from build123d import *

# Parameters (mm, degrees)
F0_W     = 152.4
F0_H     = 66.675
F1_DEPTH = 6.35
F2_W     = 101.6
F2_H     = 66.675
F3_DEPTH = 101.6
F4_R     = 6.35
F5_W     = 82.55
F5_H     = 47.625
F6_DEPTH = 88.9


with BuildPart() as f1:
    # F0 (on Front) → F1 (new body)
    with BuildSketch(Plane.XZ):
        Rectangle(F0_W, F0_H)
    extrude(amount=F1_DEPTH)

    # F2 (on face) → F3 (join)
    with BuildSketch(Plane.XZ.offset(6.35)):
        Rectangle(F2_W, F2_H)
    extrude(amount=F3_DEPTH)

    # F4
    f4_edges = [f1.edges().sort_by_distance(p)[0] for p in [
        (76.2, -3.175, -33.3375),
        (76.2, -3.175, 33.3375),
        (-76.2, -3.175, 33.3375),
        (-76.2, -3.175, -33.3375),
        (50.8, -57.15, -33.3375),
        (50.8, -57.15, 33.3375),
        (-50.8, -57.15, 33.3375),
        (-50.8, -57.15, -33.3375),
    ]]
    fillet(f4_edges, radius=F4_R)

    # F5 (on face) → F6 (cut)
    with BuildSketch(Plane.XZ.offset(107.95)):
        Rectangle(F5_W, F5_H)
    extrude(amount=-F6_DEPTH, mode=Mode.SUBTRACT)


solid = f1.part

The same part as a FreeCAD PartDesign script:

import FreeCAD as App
import Part
import Sketcher

V = App.Vector
Q = App.Units.Quantity


def edges_at(feature, points):
    """Names of the edges that pass closest to the given points."""
    edges = feature.Shape.Edges
    near = lambda p: min(range(len(edges)), key=lambda i: edges[i].distToShape(Part.Vertex(*p))[0])
    return sorted({f"Edge{near(p) + 1}" for p in points})

doc = App.newDocument("Part")
body = doc.addObject("PartDesign::Body", "Body")

# Sketch on XZ plane
sketch1 = body.newObject("Sketcher::SketchObject", "Sketch")
sketch1.AttachmentSupport = (doc.getObject("XZ_Plane"), [""])
sketch1.MapMode = "FlatFace"
sketch1.addGeometry([
    Part.LineSegment(V(-76, 33, 0), V(-76, -33, 0)),
    Part.LineSegment(V(-76, -33, 0), V(76, -33, 0)),
    Part.LineSegment(V(76, -33, 0), V(76, 33, 0)),
    Part.LineSegment(V(76, 33, 0), V(-76, 33, 0)),
], False)
sketch1.addConstraint([
    Sketcher.Constraint("Coincident", 0, 2, 1, 1),
    Sketcher.Constraint("Coincident", 1, 2, 2, 1),
    Sketcher.Constraint("Coincident", 2, 2, 3, 1),
    Sketcher.Constraint("Coincident", 3, 2, 0, 1),
    Sketcher.Constraint("Vertical", 0),
    Sketcher.Constraint("Horizontal", 1),
    Sketcher.Constraint("Vertical", 2),
    Sketcher.Constraint("Horizontal", 3),
    Sketcher.Constraint("Symmetric", 0, 2, 2, 2, -1, 1),
    Sketcher.Constraint("DistanceX", 1, 1, 1, 2, Q("6 in")),
    Sketcher.Constraint("DistanceY", 0, 2, 0, 1, Q("2.625 in")),
])
pad1 = body.newObject("PartDesign::Pad", "Pad")
pad1.Profile = sketch1
pad1.Length = Q("0.25 in")

# Sketch on XZ plane
sketch2 = body.newObject("Sketcher::SketchObject", "Sketch001")
sketch2.AttachmentSupport = (doc.getObject("XZ_Plane"), [""])
sketch2.MapMode = "FlatFace"
sketch2.AttachmentOffset = App.Placement(V(0, 0, 0.25 * 25.4), App.Rotation())
sketch2.addGeometry([
    Part.LineSegment(V(-51, 33, 0), V(-51, -33, 0)),
    Part.LineSegment(V(-51, -33, 0), V(51, -33, 0)),
    Part.LineSegment(V(51, -33, 0), V(51, 33, 0)),
    Part.LineSegment(V(51, 33, 0), V(-51, 33, 0)),
], False)
sketch2.addConstraint([
    Sketcher.Constraint("Coincident", 0, 2, 1, 1),
    Sketcher.Constraint("Coincident", 1, 2, 2, 1),
    Sketcher.Constraint("Coincident", 2, 2, 3, 1),
    Sketcher.Constraint("Coincident", 3, 2, 0, 1),
    Sketcher.Constraint("Vertical", 0),
    Sketcher.Constraint("Horizontal", 1),
    Sketcher.Constraint("Vertical", 2),
    Sketcher.Constraint("Horizontal", 3),
    Sketcher.Constraint("Symmetric", 0, 2, 2, 2, -1, 1),
    Sketcher.Constraint("DistanceX", 1, 1, 1, 2, Q("4 in")),
    Sketcher.Constraint("DistanceY", 0, 2, 0, 1, Q("2.625 in")),
])
pad2 = body.newObject("PartDesign::Pad", "Pad001")
pad2.Profile = sketch2
pad2.Length = Q("4 in")
doc.recompute()

fillet = body.newObject("PartDesign::Fillet", "Fillet")
fillet.Base = (pad2, edges_at(pad2, [
    (76.2, -3.175, -33.337),
    (76.2, -3.175, 33.337),
    (-76.2, -3.175, 33.337),
    (-76.2, -3.175, -33.337),
    (50.8, -57.15, -33.337),
    (50.8, -57.15, 33.337),
    (-50.8, -57.15, 33.337),
    (-50.8, -57.15, -33.337),
]))
fillet.Radius = Q("0.25 in")

# Sketch on XZ plane
sketch3 = body.newObject("Sketcher::SketchObject", "Sketch002")
sketch3.AttachmentSupport = (doc.getObject("XZ_Plane"), [""])
sketch3.MapMode = "FlatFace"
sketch3.AttachmentOffset = App.Placement(V(0, 0, 4.25 * 25.4), App.Rotation())
sketch3.addGeometry([
    Part.LineSegment(V(-41, 24, 0), V(-41, -24, 0)),
    Part.LineSegment(V(-41, -24, 0), V(41, -24, 0)),
    Part.LineSegment(V(41, -24, 0), V(41, 24, 0)),
    Part.LineSegment(V(41, 24, 0), V(-41, 24, 0)),
], False)
sketch3.addConstraint([
    Sketcher.Constraint("Coincident", 0, 2, 1, 1),
    Sketcher.Constraint("Coincident", 1, 2, 2, 1),
    Sketcher.Constraint("Coincident", 2, 2, 3, 1),
    Sketcher.Constraint("Coincident", 3, 2, 0, 1),
    Sketcher.Constraint("Vertical", 0),
    Sketcher.Constraint("Horizontal", 1),
    Sketcher.Constraint("Vertical", 2),
    Sketcher.Constraint("Horizontal", 3),
    Sketcher.Constraint("Symmetric", 0, 2, 2, 2, -1, 1),
    Sketcher.Constraint("DistanceX", 1, 1, 1, 2, Q("3.25 in")),
    Sketcher.Constraint("DistanceY", 0, 2, 0, 1, Q("1.875 in")),
])
pocket1 = body.newObject("PartDesign::Pocket", "Pocket")
pocket1.Profile = sketch3
pocket1.Length = Q("3.5 in")

doc.recompute()
